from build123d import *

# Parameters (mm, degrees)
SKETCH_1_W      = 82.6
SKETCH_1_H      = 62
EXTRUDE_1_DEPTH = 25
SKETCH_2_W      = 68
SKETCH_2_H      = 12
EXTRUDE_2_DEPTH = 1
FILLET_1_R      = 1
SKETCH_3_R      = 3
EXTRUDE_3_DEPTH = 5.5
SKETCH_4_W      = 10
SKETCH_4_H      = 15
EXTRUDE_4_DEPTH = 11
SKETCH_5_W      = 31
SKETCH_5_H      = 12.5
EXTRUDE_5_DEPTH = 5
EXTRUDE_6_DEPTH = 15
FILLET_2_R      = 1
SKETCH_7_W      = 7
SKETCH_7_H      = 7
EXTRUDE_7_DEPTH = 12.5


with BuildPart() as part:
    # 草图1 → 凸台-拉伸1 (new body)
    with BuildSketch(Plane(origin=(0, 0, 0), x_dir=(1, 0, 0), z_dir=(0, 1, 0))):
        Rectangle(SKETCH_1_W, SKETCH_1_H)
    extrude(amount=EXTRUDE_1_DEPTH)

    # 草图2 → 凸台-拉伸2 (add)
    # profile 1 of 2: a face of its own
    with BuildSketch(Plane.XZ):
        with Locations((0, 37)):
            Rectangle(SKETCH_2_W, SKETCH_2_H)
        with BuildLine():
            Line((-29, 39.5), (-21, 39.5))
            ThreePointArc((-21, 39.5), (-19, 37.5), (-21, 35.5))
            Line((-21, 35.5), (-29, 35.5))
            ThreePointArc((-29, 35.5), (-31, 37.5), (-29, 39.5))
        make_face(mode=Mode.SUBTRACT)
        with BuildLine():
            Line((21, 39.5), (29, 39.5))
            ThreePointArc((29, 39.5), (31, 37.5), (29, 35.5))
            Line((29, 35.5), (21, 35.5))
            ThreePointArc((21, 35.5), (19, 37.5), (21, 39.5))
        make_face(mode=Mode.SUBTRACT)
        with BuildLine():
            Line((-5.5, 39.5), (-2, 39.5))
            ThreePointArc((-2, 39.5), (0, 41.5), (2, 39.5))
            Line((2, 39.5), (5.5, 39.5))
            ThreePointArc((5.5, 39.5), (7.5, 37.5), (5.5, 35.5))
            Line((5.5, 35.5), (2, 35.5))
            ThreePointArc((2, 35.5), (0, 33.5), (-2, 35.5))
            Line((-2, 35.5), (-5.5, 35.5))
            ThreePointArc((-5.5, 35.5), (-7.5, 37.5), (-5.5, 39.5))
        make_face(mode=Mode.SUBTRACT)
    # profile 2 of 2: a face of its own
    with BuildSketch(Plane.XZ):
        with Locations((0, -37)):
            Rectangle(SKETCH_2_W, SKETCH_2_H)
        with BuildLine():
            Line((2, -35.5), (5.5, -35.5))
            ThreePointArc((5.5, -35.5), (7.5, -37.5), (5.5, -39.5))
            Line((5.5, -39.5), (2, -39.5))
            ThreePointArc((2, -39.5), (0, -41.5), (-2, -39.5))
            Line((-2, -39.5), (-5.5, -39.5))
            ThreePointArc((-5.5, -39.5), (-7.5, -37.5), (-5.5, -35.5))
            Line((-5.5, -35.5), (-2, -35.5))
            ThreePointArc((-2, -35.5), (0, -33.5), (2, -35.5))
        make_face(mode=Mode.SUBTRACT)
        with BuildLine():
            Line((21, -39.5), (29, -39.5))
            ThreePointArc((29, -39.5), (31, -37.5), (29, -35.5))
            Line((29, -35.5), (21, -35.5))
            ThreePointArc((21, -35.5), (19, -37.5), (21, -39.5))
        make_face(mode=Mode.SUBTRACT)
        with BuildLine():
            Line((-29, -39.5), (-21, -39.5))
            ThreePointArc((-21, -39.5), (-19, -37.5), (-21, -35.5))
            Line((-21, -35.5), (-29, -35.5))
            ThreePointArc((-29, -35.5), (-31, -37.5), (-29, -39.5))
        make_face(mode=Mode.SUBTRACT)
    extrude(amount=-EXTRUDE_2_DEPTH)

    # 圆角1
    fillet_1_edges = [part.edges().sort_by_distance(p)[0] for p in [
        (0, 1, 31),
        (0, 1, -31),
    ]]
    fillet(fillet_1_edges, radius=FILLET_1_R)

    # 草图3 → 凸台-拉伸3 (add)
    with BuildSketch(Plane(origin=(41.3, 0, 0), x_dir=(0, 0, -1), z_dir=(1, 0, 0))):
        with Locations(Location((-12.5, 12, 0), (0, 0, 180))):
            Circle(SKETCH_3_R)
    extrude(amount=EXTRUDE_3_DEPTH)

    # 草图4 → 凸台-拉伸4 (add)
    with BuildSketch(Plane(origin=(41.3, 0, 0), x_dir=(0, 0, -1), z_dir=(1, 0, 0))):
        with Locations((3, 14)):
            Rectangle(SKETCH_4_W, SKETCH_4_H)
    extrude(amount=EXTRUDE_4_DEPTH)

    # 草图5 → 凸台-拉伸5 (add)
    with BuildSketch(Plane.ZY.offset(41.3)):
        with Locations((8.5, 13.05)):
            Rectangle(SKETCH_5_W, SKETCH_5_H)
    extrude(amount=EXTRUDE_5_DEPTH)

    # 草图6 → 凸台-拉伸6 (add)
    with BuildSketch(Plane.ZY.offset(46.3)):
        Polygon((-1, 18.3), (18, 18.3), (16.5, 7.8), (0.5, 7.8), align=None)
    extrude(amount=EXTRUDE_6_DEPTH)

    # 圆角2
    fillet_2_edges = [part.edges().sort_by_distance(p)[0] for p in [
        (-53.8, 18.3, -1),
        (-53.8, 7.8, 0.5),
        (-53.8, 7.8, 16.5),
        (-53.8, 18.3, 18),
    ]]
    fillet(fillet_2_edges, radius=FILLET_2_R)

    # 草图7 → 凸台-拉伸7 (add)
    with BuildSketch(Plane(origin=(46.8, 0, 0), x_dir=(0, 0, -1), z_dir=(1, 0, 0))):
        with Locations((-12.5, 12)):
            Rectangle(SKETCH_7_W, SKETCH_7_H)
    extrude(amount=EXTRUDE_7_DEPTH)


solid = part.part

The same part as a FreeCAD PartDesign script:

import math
import FreeCAD as App
import Part
import Sketcher

V = App.Vector
Q = App.Units.Quantity


def edges_at(feature, points):
    """Names of the edges that pass closest to the given points."""
    edges = feature.Shape.Edges
    near = lambda p: min(range(len(edges)), key=lambda i: edges[i].distToShape(Part.Vertex(*p))[0])
    return sorted({f"Edge{near(p) + 1}" for p in points})

doc = App.newDocument("Part")
body = doc.addObject("PartDesign::Body", "Body")

# Sketch on XZ plane
sketch1 = body.newObject("Sketcher::SketchObject", "Sketch")
sketch1.AttachmentSupport = (doc.getObject("XZ_Plane"), [""])
sketch1.MapMode = "FlatFace"
sketch1.addGeometry(Part.LineSegment(V(-41, -31, 0), V(-41, 31, 0)), False)
sketch1.addGeometry(Part.LineSegment(V(-41, 31, 0), V(41, 31, 0)), False)
sketch1.addGeometry(Part.LineSegment(V(41, 31, 0), V(41, -31, 0)), False)
sketch1.addGeometry(Part.LineSegment(V(41, -31, 0), V(-41, -31, 0)), False)
sketch1.addConstraint(Sketcher.Constraint("Coincident", 0, 2, 1, 1))
sketch1.addConstraint(Sketcher.Constraint("Coincident", 1, 2, 2, 1))
sketch1.addConstraint(Sketcher.Constraint("Coincident", 2, 2, 3, 1))
sketch1.addConstraint(Sketcher.Constraint("Coincident", 3, 2, 0, 1))
sketch1.addConstraint(Sketcher.Constraint("Vertical", 0))
sketch1.addConstraint(Sketcher.Constraint("Horizontal", 1))
sketch1.addConstraint(Sketcher.Constraint("Vertical", 2))
sketch1.addConstraint(Sketcher.Constraint("Horizontal", 3))
sketch1.addConstraint(Sketcher.Constraint("Symmetric", 0, 2, 2, 2, -1, 1))
sketch1.addConstraint(Sketcher.Constraint("DistanceY", 0, 1, 0, 2, Q("62 mm")))
sketch1.addConstraint(Sketcher.Constraint("DistanceX", 1, 1, 1, 2, Q("82.6 mm")))
pad1 = body.newObject("PartDesign::Pad", "Pad")
pad1.Profile = sketch1
pad1.Length = 25
pad1.Reversed = True

# Sketch on XZ plane
sketch2 = body.newObject("Sketcher::SketchObject", "Sketch001")
sketch2.AttachmentSupport = (doc.getObject("XZ_Plane"), [""])
sketch2.MapMode = "FlatFace"
sketch2.addGeometry(Part.LineSegment(V(-34, 43, 0), V(-34, 31, 0)), False)
sketch2.addGeometry(Part.LineSegment(V(-34, 31, 0), V(34, 31, 0)), False)
sketch2.addGeometry(Part.LineSegment(V(34, 31, 0), V(34, 43, 0)), False)
sketch2.addGeometry(Part.LineSegment(V(34, 43, 0), V(-34, 43, 0)), False)
sketch2.addGeometry(Part.ArcOfCircle(Part.Circle(V(-29, 37.5, 0), V(0, 0, 1), 2), math.radians(90), math.radians(270)), False)
sketch2.addGeometry(Part.LineSegment(V(-29, 39.5, 0), V(-21, 39.5, 0)), False)
sketch2.addGeometry(Part.ArcOfCircle(Part.Circle(V(-21, 37.5, 0), V(0, 0, 1), 2), math.radians(-90), math.radians(90)), False)
sketch2.addGeometry(Part.LineSegment(V(-21, 35.5, 0), V(-29, 35.5, 0)), False)
sketch2.addGeometry(Part.ArcOfCircle(Part.Circle(V(-5.5, 37.5, 0), V(0, 0, 1), 2), math.radians(90), math.radians(270)), False)
sketch2.addGeometry(Part.LineSegment(V(-5.5, 39.5, 0), V(-2, 39.5, 0)), False)
sketch2.addGeometry(Part.ArcOfCircle(Part.Circle(V(0, 39.5, 0), V(0, 0, 1), 2), math.radians(0), math.radians(180)), False)
sketch2.addGeometry(Part.LineSegment(V(2, 39.5, 0), V(5.5, 39.5, 0)), False)
sketch2.addGeometry(Part.ArcOfCircle(Part.Circle(V(5.5, 37.5, 0), V(0, 0, 1), 2), math.radians(-90), math.radians(90)), False)
sketch2.addGeometry(Part.LineSegment(V(5.5, 35.5, 0), V(2, 35.5, 0)), False)
sketch2.addGeometry(Part.ArcOfCircle(Part.Circle(V(0, 35.5, 0), V(0, 0, 1), 2), math.radians(180), math.radians(360)), False)
sketch2.addGeometry(Part.LineSegment(V(-2, 35.5, 0), V(-5.5, 35.5, 0)), False)
sketch2.addGeometry(Part.ArcOfCircle(Part.Circle(V(21, 37.5, 0), V(0, 0, 1), 2), math.radians(90), math.radians(270)), False)
sketch2.addGeometry(Part.LineSegment(V(21, 39.5, 0), V(29, 39.5, 0)), False)
sketch2.addGeometry(Part.ArcOfCircle(Part.Circle(V(29, 37.5, 0), V(0, 0, 1), 2), math.radians(-90), math.radians(90)), False)
sketch2.addGeometry(Part.LineSegment(V(29, 35.5, 0), V(21, 35.5, 0)), False)
sketch2.addGeometry(Part.LineSegment(V(-34, -31, 0), V(-34, -43, 0)), False)
sketch2.addGeometry(Part.LineSegment(V(-34, -43, 0), V(34, -43, 0)), False)
sketch2.addGeometry(Part.LineSegment(V(34, -43, 0), V(34, -31, 0)), False)
sketch2.addGeometry(Part.LineSegment(V(34, -31, 0), V(-34, -31, 0)), False)
sketch2.addGeometry(Part.LineSegment(V(-21, -39.5, 0), V(-29, -39.5, 0)), False)
sketch2.addGeometry(Part.ArcOfCircle(Part.Circle(V(-29, -37.5, 0), V(0, 0, 1), 2), math.radians(90), math.radians(270)), False)
sketch2.addGeometry(Part.LineSegment(V(-29, -35.5, 0), V(-21, -35.5, 0)), False)
sketch2.addGeometry(Part.ArcOfCircle(Part.Circle(V(-21, -37.5, 0), V(0, 0, 1), 2), math.radians(-90), math.radians(90)), False)
sketch2.addGeometry(Part.ArcOfCircle(Part.Circle(V(0, -35.5, 0), V(0, 0, 1), 2), math.radians(0), math.radians(180)), False)
sketch2.addGeometry(Part.LineSegment(V(2, -35.5, 0), V(5.5, -35.5, 0)), False)
sketch2.addGeometry(Part.ArcOfCircle(Part.Circle(V(5.5, -37.5, 0), V(0, 0, 1), 2), math.radians(-90), math.radians(90)), False)
sketch2.addGeometry(Part.LineSegment(V(5.5, -39.5, 0), V(2, -39.5, 0)), False)
sketch2.addGeometry(Part.ArcOfCircle(Part.Circle(V(0, -39.5, 0), V(0, 0, 1), 2), math.radians(180), math.radians(360)), False)
sketch2.addGeometry(Part.LineSegment(V(-2, -39.5, 0), V(-5.5, -39.5, 0)), False)
sketch2.addGeometry(Part.ArcOfCircle(Part.Circle(V(-5.5, -37.5, 0), V(0, 0, 1), 2), math.radians(90), math.radians(270)), False)
sketch2.addGeometry(Part.LineSegment(V(-5.5, -35.5, 0), V(-2, -35.5, 0)), False)
sketch2.addGeometry(Part.LineSegment(V(29, -39.5, 0), V(21, -39.5, 0)), False)
sketch2.addGeometry(Part.ArcOfCircle(Part.Circle(V(21, -37.5, 0), V(0, 0, 1), 2), math.radians(90), math.radians(270)), False)
sketch2.addGeometry(Part.LineSegment(V(21, -35.5, 0), V(29, -35.5, 0)), False)
sketch2.addGeometry(Part.ArcOfCircle(Part.Circle(V(29, -37.5, 0), V(0, 0, 1), 2), math.radians(-90), math.radians(90)), False)
sketch2.addConstraint(Sketcher.Constraint("Coincident", 0, 2, 1, 1))
sketch2.addConstraint(Sketcher.Constraint("Coincident", 1, 2, 2, 1))
sketch2.addConstraint(Sketcher.Constraint("Coincident", 2, 2, 3, 1))
sketch2.addConstraint(Sketcher.Constraint("Coincident", 3, 2, 0, 1))
sketch2.addConstraint(Sketcher.Constraint("Tangent", 4, 1, 5, 1))
sketch2.addConstraint(Sketcher.Constraint("Tangent", 5, 2, 6, 2))
sketch2.addConstraint(Sketcher.Constraint("Tangent", 6, 1, 7, 1))
sketch2.addConstraint(Sketcher.Constraint("Tangent", 7, 2, 4, 2))
sketch2.addConstraint(Sketcher.Constraint("Tangent", 8, 1, 9, 1))
sketch2.addConstraint(Sketcher.Constraint("Coincident", 9, 2, 10, 2))
sketch2.addConstraint(Sketcher.Constraint("Coincident", 10, 1, 11, 1))
sketch2.addConstraint(Sketcher.Constraint("Tangent", 11, 2, 12, 2))
sketch2.addConstraint(Sketcher.Constraint("Tangent", 12, 1, 13, 1))
sketch2.addConstraint(Sketcher.Constraint("Coincident", 13, 2, 14, 2))
sketch2.addConstraint(Sketcher.Constraint("Coincident", 14, 1, 15, 1))
sketch2.addConstraint(Sketcher.Constraint("Tangent", 15, 2, 8, 2))
sketch2.addConstraint(Sketcher.Constraint("Tangent", 16, 1, 17, 1))
sketch2.addConstraint(Sketcher.Constraint("Tangent", 17, 2, 18, 2))
sketch2.addConstraint(Sketcher.Constraint("Tangent", 18, 1, 19, 1))
sketch2.addConstraint(Sketcher.Constraint("Tangent", 19, 2, 16, 2))
sketch2.addConstraint(Sketcher.Constraint("Coincident", 20, 2, 21, 1))
sketch2.addConstraint(Sketcher.Constraint("Coincident", 21, 2, 22, 1))
sketch2.addConstraint(Sketcher.Constraint("Coincident", 22, 2, 23, 1))
sketch2.addConstraint(Sketcher.Constraint("Coincident", 23, 2, 20, 1))
sketch2.addConstraint(Sketcher.Constraint("Tangent", 24, 2, 25, 2))
sketch2.addConstraint(Sketcher.Constraint("Tangent", 25, 1, 26, 1))
sketch2.addConstraint(Sketcher.Constraint("Tangent", 26, 2, 27, 2))
sketch2.addConstraint(Sketcher.Constraint("Tangent", 27, 1, 24, 1))
sketch2.addConstraint(Sketcher.Constraint("Coincident", 28, 1, 29, 1))
sketch2.addConstraint(Sketcher.Constraint("Tangent", 29, 2, 30, 2))
sketch2.addConstraint(Sketcher.Constraint("Tangent", 30, 1, 31, 1))
sketch2.addConstraint(Sketcher.Constraint("Coincident", 31, 2, 32, 2))
sketch2.addConstraint(Sketcher.Constraint("Coincident", 32, 1, 33, 1))
sketch2.addConstraint(Sketcher.Constraint("Tangent", 33, 2, 34, 2))
sketch2.addConstraint(Sketcher.Constraint("Tangent", 34, 1, 35, 1))
sketch2.addConstraint(Sketcher.Constraint("Coincident", 35, 2, 28, 2))
sketch2.addConstraint(Sketcher.Constraint("Tangent", 36, 2, 37, 2))
sketch2.addConstraint(Sketcher.Constraint("Tangent", 37, 1, 38, 1))
sketch2.addConstraint(Sketcher.Constraint("Tangent", 38, 2, 39, 2))
sketch2.addConstraint(Sketcher.Constraint("Tangent", 39, 1, 36, 1))
sketch2.addConstraint(Sketcher.Constraint("Vertical", 0))
sketch2.addConstraint(Sketcher.Constraint("Horizontal", 1))
sketch2.addConstraint(Sketcher.Constraint("Vertical", 2))
sketch2.addConstraint(Sketcher.Constraint("Horizontal", 3))
sketch2.addConstraint(Sketcher.Constraint("Horizontal", 5))
sketch2.addConstraint(Sketcher.Constraint("Horizontal", 7))
sketch2.addConstraint(Sketcher.Constraint("Horizontal", 9))
sketch2.addConstraint(Sketcher.Constraint("Horizontal", 11))
sketch2.addConstraint(Sketcher.Constraint("Horizontal", 13))
sketch2.addConstraint(Sketcher.Constraint("Horizontal", 15))
sketch2.addConstraint(Sketcher.Constraint("Horizontal", 17))
sketch2.addConstraint(Sketcher.Constraint("Horizontal", 19))
sketch2.addConstraint(Sketcher.Constraint("Vertical", 20))
sketch2.addConstraint(Sketcher.Constraint("Horizontal", 21))
sketch2.addConstraint(Sketcher.Constraint("Vertical", 22))
sketch2.addConstraint(Sketcher.Constraint("Horizontal", 23))
sketch2.addConstraint(Sketcher.Constraint("Horizontal", 24))
sketch2.addConstraint(Sketcher.Constraint("Horizontal", 26))
sketch2.addConstraint(Sketcher.Constraint("Horizontal", 29))
sketch2.addConstraint(Sketcher.Constraint("Horizontal", 31))
sketch2.addConstraint(Sketcher.Constraint("Horizontal", 33))
sketch2.addConstraint(Sketcher.Constraint("Horizontal", 35))
sketch2.addConstraint(Sketcher.Constraint("Horizontal", 36))
sketch2.addConstraint(Sketcher.Constraint("Horizontal", 38))
sketch2.addConstraint(Sketcher.Constraint("Equal", 6, 8))
sketch2.addConstraint(Sketcher.Constraint("Equal", 8, 10))
sketch2.addConstraint(Sketcher.Constraint("Equal", 10, 12))
sketch2.addConstraint(Sketcher.Constraint("Equal", 12, 14))
sketch2.addConstraint(Sketcher.Constraint("Equal", 14, 16))
sketch2.addConstraint(Sketcher.Constraint("Equal", 18, 25))
sketch2.addConstraint(Sketcher.Constraint("Equal", 27, 28))
sketch2.addConstraint(Sketcher.Constraint("Equal", 28, 30))
sketch2.addConstraint(Sketcher.Constraint("Equal", 30, 32))
sketch2.addConstraint(Sketcher.Constraint("Equal", 32, 34))
sketch2.addConstraint(Sketcher.Constraint("Equal", 34, 37))
sketch2.addConstraint(Sketcher.Constraint("Symmetric", 18, 3, 25, 3, -1, 1))
sketch2.addConstraint(Sketcher.Constraint("Symmetric", 14, 3, 28, 3, -1, 1))
sketch2.addConstraint(Sketcher.Constraint("Symmetric", 8, 3, 30, 3, -1, 1))
sketch2.addConstraint(Sketcher.Constraint("Symmetric", 10, 3, 32, 3, -1, 1))
sketch2.addConstraint(Sketcher.Constraint("Symmetric", 12, 3, 34, 3, -1, 1))
sketch2.addConstraint(Sketcher.Constraint("Symmetric", 6, 3, 37, 3, -1, 1))
sketch2.addConstraint(Sketcher.Constraint("Symmetric", 2, 2, 20, 2, -1, 1))
sketch2.addConstraint(Sketcher.Constraint("Symmetric", 0, 2, 22, 2, -1, 1))
sketch2.addConstraint(Sketcher.Constraint("Symmetric", 8, 3, 12, 3, -2))
sketch2.addConstraint(Sketcher.Constraint("Symmetric", 6, 3, 16, 3, -2))
sketch2.addConstraint(Sketcher.Constraint("PointOnObject", 10, 3, -2))
sketch2.addConstraint(Sketcher.Constraint("PointOnObject", 14, 3, -2))
sketch2.addConstraint(Sketcher.Constraint("Horizontal", 6, 3, 8, 3))
sketch2.addConstraint(Sketcher.Constraint("Horizontal", 10, 3, 4, 1))
sketch2.addConstraint(Sketcher.Constraint("Horizontal", 14, 3, 6, 1))
sketch2.addConstraint(Sketcher.Constraint("Vertical", 4, 3, 25, 3))
sketch2.addConstraint(Sketcher.Constraint("Vertical", 6, 3, 27, 3))
sketch2.addConstraint(Sketcher.Constraint("Vertical", 18, 3, 39, 3))
sketch2.addConstraint(Sketcher.Constraint("Vertical", 3, 2, 20, 2))
sketch2.addConstraint(Sketcher.Constraint("Radius", 4, Q("2 mm")))
sketch2.addConstraint(Sketcher.Constraint("DistanceX", 1, 1, 1, 2, Q("68 mm")))
sketch2.addConstraint(Sketcher.Constraint("DistanceX", 5, 1, 5, 2, Q("8 mm")))
sketch2.addConstraint(Sketcher.Constraint("DistanceY", 0, 2, 0, 1, Q("12 mm")))
sketch2.addConstraint(Sketcher.Constraint("DistanceX", 9, 1, 9, 2, Q("3.5 mm")))
sketch2.addConstraint(Sketcher.Constraint("DistanceX", 4, 3, -1, 1, Q("29 mm")))
sketch2.addConstraint(Sketcher.Constraint("DistanceY", -1, 1, 0, 2, Q("31 mm")))
sketch2.addConstraint(Sketcher.Constraint("DistanceY", 25, 3, 4, 3, Q("75 mm")))
pad2 = body.newObject("PartDesign::Pad", "Pad001")
pad2.Profile = sketch2
pad2.Length = 1
pad2.Reversed = True
doc.recompute()

fillet = body.newObject("PartDesign::Fillet", "Fillet")
fillet.Base = (pad2, edges_at(pad2, [(0, 1, 31), (0, 1, -31)]))
fillet.Radius = 1

# Sketch on YZ plane
sketch3 = body.newObject("Sketcher::SketchObject", "Sketch002")
sketch3.AttachmentSupport = (doc.getObject("YZ_Plane"), [""])
sketch3.MapMode = "FlatFace"
sketch3.AttachmentOffset = App.Placement(V(0, 0, 41.3), App.Rotation())
sketch3.addGeometry(Part.Circle(V(12, 12.5, 0), V(0, 0, 1), 3), False)
sketch3.addConstraint(Sketcher.Constraint("Diameter", 0, Q("6 mm")))
sketch3.addConstraint(Sketcher.Constraint("DistanceX", -1, 1, 0, 3, Q("12 mm")))
sketch3.addConstraint(Sketcher.Constraint("DistanceY", -1, 1, 0, 3, Q("12.5 mm")))
pad3 = body.newObject("PartDesign::Pad", "Pad002")
pad3.Profile = sketch3
pad3.Length = 5.5

# Sketch on YZ plane
sketch4 = body.newObject("Sketcher::SketchObject", "Sketch003")
sketch4.AttachmentSupport = (doc.getObject("YZ_Plane"), [""])
sketch4.MapMode = "FlatFace"
sketch4.AttachmentOffset = App.Placement(V(0, 0, 41.3), App.Rotation())
sketch4.addGeometry(Part.LineSegment(V(22, 2, 0), V(6, 2, 0)), False)
sketch4.addGeometry(Part.LineSegment(V(6, 2, 0), V(6, -8, 0)), False)
sketch4.addGeometry(Part.LineSegment(V(6, -8, 0), V(22, -8, 0)), False)
sketch4.addGeometry(Part.LineSegment(V(22, -8, 0), V(22, 2, 0)), False)
sketch4.addConstraint(Sketcher.Constraint("Coincident", 0, 2, 1, 1))
sketch4.addConstraint(Sketcher.Constraint("Coincident", 1, 2, 2, 1))
sketch4.addConstraint(Sketcher.Constraint("Coincident", 2, 2, 3, 1))
sketch4.addConstraint(Sketcher.Constraint("Coincident", 3, 2, 0, 1))
sketch4.addConstraint(Sketcher.Constraint("Horizontal", 0))
sketch4.addConstraint(Sketcher.Constraint("Vertical", 1))
sketch4.addConstraint(Sketcher.Constraint("Horizontal", 2))
sketch4.addConstraint(Sketcher.Constraint("Vertical", 3))
sketch4.addConstraint(Sketcher.Constraint("DistanceX", 0, 2, 0, 1, Q("15 mm")))
sketch4.addConstraint(Sketcher.Constraint("DistanceY", 1, 2, 1, 1, Q("10 mm")))
sketch4.addConstraint(Sketcher.Constraint("DistanceY", -1, 1, 0, 2, Q("2 mm")))
sketch4.addConstraint(Sketcher.Constraint("DistanceX", -1, 1, 0, 2, Q("6.5 mm")))
pad4 = body.newObject("PartDesign::Pad", "Pad003")
pad4.Profile = sketch4
pad4.Length = 11

# Sketch on YZ plane
sketch5 = body.newObject("Sketcher::SketchObject", "Sketch004")
sketch5.AttachmentSupport = (doc.getObject("YZ_Plane"), [""])
sketch5.MapMode = "FlatFace"
sketch5.AttachmentOffset = App.Placement(V(0, 0, -41.3), App.Rotation())
sketch5.addGeometry(Part.LineSegment(V(19, -7, 0), V(7, -7, 0)), False)
sketch5.addGeometry(Part.LineSegment(V(7, -7, 0), V(7, 24, 0)), False)
sketch5.addGeometry(Part.LineSegment(V(7, 24, 0), V(19, 24, 0)), False)
sketch5.addGeometry(Part.LineSegment(V(19, 24, 0), V(19, -7, 0)), False)
sketch5.addConstraint(Sketcher.Constraint("Coincident", 0, 2, 1, 1))
sketch5.addConstraint(Sketcher.Constraint("Coincident", 1, 2, 2, 1))
sketch5.addConstraint(Sketcher.Constraint("Coincident", 2, 2, 3, 1))
sketch5.addConstraint(Sketcher.Constraint("Coincident", 3, 2, 0, 1))
sketch5.addConstraint(Sketcher.Constraint("Horizontal", 0))
sketch5.addConstraint(Sketcher.Constraint("Vertical", 1))
sketch5.addConstraint(Sketcher.Constraint("Horizontal", 2))
sketch5.addConstraint(Sketcher.Constraint("Vertical", 3))
sketch5.addConstraint(Sketcher.Constraint("DistanceY", 1, 1, 1, 2, Q("31 mm")))
sketch5.addConstraint(Sketcher.Constraint("DistanceX", 0, 2, 0, 1, Q("12.5 mm")))
sketch5.addConstraint(Sketcher.Constraint("DistanceY", 0, 2, -1, 1, Q("7 mm")))
sketch5.addConstraint(Sketcher.Constraint("DistanceX", -1, 1, 0, 2, Q("6.8 mm")))
pad5 = body.newObject("PartDesign::Pad", "Pad004")
pad5.Profile = sketch5
pad5.Length = 5
pad5.Reversed = True

# Sketch on YZ plane
sketch6 = body.newObject("Sketcher::SketchObject", "Sketch005")
sketch6.AttachmentSupport = (doc.getObject("YZ_Plane"), [""])
sketch6.MapMode = "FlatFace"
sketch6.AttachmentOffset = App.Placement(V(0, 0, -46.3), App.Rotation())
sketch6.addGeometry(Part.LineSegment(V(18, 18, 0), V(18, -1, 0)), False)
sketch6.addGeometry(Part.LineSegment(V(18, -1, 0), V(8, 0, 0)), False)
sketch6.addGeometry(Part.LineSegment(V(8, 0, 0), V(8, 16, 0)), False)
sketch6.addGeometry(Part.LineSegment(V(8, 16, 0), V(18, 18, 0)), False)
sketch6.addConstraint(Sketcher.Constraint("Coincident", 0, 2, 1, 1))
sketch6.addConstraint(Sketcher.Constraint("Coincident", 1, 2, 2, 1))
sketch6.addConstraint(Sketcher.Constraint("Coincident", 2, 2, 3, 1))
sketch6.addConstraint(Sketcher.Constraint("Coincident", 3, 2, 0, 1))
sketch6.addConstraint(Sketcher.Constraint("Vertical", 0))
sketch6.addConstraint(Sketcher.Constraint("Vertical", 2))
sketch6.addConstraint(Sketcher.Constraint("Equal", 1, 3))
sketch6.addConstraint(Sketcher.Constraint("DistanceY", 0, 2, 0, 1, Q("19 mm")))
sketch6.addConstraint(Sketcher.Constraint("DistanceY", 2, 1, 2, 2, Q("16 mm")))
sketch6.addConstraint(Sketcher.Constraint("DistanceY", 0, 2, -1, 1, Q("1 mm")))
sketch6.addConstraint(Sketcher.Constraint("DistanceX", -1, 1, 0, 2, Q("18.3 mm")))
sketch6.addConstraint(Sketcher.Constraint("DistanceX", -1, 1, 1, 2, Q("7.8 mm")))
pad6 = body.newObject("PartDesign::Pad", "Pad005")
pad6.Profile = sketch6
pad6.Length = 15
pad6.Reversed = True
doc.recompute()

fillet2 = body.newObject("PartDesign::Fillet", "Fillet001")
fillet2.Base = (pad6, edges_at(pad6, [
    (-53.8, 18.3, -1),
    (-53.8, 7.8, 0.5),
    (-53.8, 7.8, 16.5),
    (-53.8, 18.3, 18),
]))
fillet2.Radius = 1

# Sketch on YZ plane
sketch7 = body.newObject("Sketcher::SketchObject", "Sketch006")
sketch7.AttachmentSupport = (doc.getObject("YZ_Plane"), [""])
sketch7.MapMode = "FlatFace"
sketch7.AttachmentOffset = App.Placement(V(0, 0, 46.8), App.Rotation())
sketch7.addGeometry(Part.LineSegment(V(16, 16, 0), V(8, 16, 0)), False)
sketch7.addGeometry(Part.LineSegment(V(8, 16, 0), V(8, 9, 0)), False)
sketch7.addGeometry(Part.LineSegment(V(8, 9, 0), V(16, 9, 0)), False)
sketch7.addGeometry(Part.LineSegment(V(16, 9, 0), V(16, 16, 0)), False)
sketch7.addConstraint(Sketcher.Constraint("Coincident", 0, 2, 1, 1))
sketch7.addConstraint(Sketcher.Constraint("Coincident", 1, 2, 2, 1))
sketch7.addConstraint(Sketcher.Constraint("Coincident", 2, 2, 3, 1))
sketch7.addConstraint(Sketcher.Constraint("Coincident", 3, 2, 0, 1))
sketch7.addConstraint(Sketcher.Constraint("Horizontal", 0))
sketch7.addConstraint(Sketcher.Constraint("Vertical", 1))
sketch7.addConstraint(Sketcher.Constraint("Horizontal", 2))
sketch7.addConstraint(Sketcher.Constraint("Vertical", 3))
sketch7.addConstraint(Sketcher.Constraint("Equal", 2, 1))
sketch7.addConstraint(Sketcher.Constraint("DistanceX", 0, 2, 0, 1, Q("7 mm")))
sketch7.addConstraint(Sketcher.Constraint("DistanceY", -1, 1, 0, 2, Q("16 mm")))
sketch7.addConstraint(Sketcher.Constraint("DistanceX", -1, 1, 0, 2, Q("8.5 mm")))
pad7 = body.newObject("PartDesign::Pad", "Pad006")
pad7.Profile = sketch7
pad7.Length = 12.5

doc.recompute()
